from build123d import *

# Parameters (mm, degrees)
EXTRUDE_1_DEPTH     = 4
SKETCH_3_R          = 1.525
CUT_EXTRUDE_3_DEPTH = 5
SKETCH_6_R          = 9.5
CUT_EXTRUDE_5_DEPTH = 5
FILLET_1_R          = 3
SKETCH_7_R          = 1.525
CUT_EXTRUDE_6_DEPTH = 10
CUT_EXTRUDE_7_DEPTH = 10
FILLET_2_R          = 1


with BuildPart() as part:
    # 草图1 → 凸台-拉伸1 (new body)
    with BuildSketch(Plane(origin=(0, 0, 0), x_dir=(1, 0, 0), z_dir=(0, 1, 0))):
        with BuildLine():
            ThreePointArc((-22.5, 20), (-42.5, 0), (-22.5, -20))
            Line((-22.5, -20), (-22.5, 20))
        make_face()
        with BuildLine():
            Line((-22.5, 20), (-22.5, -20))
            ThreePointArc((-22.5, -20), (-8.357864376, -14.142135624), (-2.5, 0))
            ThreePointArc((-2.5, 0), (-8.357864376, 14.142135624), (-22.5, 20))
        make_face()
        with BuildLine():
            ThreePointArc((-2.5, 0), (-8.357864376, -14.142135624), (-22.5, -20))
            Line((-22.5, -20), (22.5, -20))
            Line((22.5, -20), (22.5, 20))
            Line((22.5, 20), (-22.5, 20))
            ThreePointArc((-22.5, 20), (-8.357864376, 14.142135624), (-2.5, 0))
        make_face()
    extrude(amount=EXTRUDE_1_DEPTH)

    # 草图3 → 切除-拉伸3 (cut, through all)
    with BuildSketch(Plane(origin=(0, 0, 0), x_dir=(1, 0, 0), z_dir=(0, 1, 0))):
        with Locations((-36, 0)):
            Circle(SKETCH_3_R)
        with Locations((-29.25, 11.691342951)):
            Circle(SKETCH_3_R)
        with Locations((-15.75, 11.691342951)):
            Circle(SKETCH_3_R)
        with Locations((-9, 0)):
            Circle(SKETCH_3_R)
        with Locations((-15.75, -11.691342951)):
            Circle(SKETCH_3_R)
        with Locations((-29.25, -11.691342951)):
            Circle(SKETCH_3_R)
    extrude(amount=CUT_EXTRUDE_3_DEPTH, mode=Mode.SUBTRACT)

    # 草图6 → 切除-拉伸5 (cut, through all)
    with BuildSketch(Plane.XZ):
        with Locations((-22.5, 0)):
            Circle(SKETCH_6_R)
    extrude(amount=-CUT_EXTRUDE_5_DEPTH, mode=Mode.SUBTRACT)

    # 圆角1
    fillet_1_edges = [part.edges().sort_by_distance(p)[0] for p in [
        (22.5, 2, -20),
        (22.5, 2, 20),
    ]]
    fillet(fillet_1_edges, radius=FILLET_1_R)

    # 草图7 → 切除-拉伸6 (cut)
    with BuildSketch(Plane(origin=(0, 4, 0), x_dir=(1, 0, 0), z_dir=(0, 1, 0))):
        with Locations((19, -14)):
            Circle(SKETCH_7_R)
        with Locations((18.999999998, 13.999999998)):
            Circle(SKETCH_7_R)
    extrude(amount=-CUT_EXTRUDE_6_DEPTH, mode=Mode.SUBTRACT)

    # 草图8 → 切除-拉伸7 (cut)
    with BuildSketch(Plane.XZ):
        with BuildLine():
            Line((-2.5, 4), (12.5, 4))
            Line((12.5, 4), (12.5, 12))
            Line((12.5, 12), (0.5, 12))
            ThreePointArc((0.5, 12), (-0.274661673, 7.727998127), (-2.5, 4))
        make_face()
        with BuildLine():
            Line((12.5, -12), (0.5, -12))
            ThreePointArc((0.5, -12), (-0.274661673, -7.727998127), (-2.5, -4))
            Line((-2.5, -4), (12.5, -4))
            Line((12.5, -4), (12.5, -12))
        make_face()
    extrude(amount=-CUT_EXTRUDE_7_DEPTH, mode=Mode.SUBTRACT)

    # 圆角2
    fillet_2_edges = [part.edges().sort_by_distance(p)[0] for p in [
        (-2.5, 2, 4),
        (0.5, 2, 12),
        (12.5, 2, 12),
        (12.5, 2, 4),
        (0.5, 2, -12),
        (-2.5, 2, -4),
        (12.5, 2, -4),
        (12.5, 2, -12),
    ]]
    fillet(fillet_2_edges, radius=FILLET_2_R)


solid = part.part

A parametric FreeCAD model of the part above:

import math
import FreeCAD as App
import Part
import Sketcher


def edges_at(feature, points):
    """Names of the edges that pass closest to the given points."""
    edges = feature.Shape.Edges
    near = lambda p: min(range(len(edges)), key=lambda i: edges[i].distToShape(Part.Vertex(*p))[0])
    return sorted({f"Edge{near(p) + 1}" for p in points})

doc = App.newDocument("Part")
params = doc.addObject("Spreadsheet::Sheet", "Params")
for row, (alias, value) in enumerate([
    ("sketch1_radius", "20 mm"),
    ("sketch1_width", "45 mm"),
    ("pad1_length", "4 mm"),
    ("sketch2_diameter", "3.05 mm"),
    ("sketch3_diameter", "19 mm"),
    ("fillet_radius", "3 mm"),
    ("sketch4_diameter", "3.05 mm"),
    ("pocket3_length", "10 mm"),
    ("sketch5_width", "15 mm"),
    ("sketch5_width2", "12 mm"),
    ("sketch5_height", "8 mm"),
    ("pocket4_length", "10 mm"),
    ("fillet2_radius", "1 mm"),
], start=1):
    params.set(f"A{row}", alias)
    params.set(f"B{row}", "=" + value)
    params.setAlias(f"B{row}", alias)

body = doc.addObject("PartDesign::Body", "Body")

# Sketch on XZ plane
sketch1 = doc.addObject("Sketcher::SketchObject", "Sketch")
body.addObject(sketch1)
sketch1.AttachmentSupport = (doc.XZ_Plane, [""])
sketch1.MapMode = "FlatFace"
sketch1.addGeometry(Part.ArcOfCircle(Part.Circle(App.Vector(-22.5, 0, 0), App.Vector(0, 0, 1), 20), math.radians(90), math.radians(270)), False)
sketch1.addGeometry(Part.LineSegment(App.Vector(-22.5, 20, 0), App.Vector(22.5, 20, 0)), False)
sketch1.addGeometry(Part.LineSegment(App.Vector(22.5, 20, 0), App.Vector(22.5, -20, 0)), False)
sketch1.addGeometry(Part.LineSegment(App.Vector(22.5, -20, 0), App.Vector(-22.5, -20, 0)), False)
sketch1.addConstraint(Sketcher.Constraint("Tangent", 0, 1, 1, 1))
sketch1.addConstraint(Sketcher.Constraint("Coincident", 1, 2, 2, 1))
sketch1.addConstraint(Sketcher.Constraint("Coincident", 2, 2, 3, 1))
sketch1.addConstraint(Sketcher.Constraint("Tangent", 3, 2, 0, 2))
sketch1.addConstraint(Sketcher.Constraint("Horizontal", 1))
sketch1.addConstraint(Sketcher.Constraint("Vertical", 2))
sketch1.addConstraint(Sketcher.Constraint("Horizontal", 3))
sketch1.addConstraint(Sketcher.Constraint("Symmetric", 0, 1, 2, 2, -1, 1))
sketch1.addConstraint(Sketcher.Constraint("Radius", 0, 20.0))
sketch1.addConstraint(Sketcher.Constraint("DistanceX", 1, 1, 1, 2, 45.0))
sketch1.setExpression("Constraints[8]", "Params.sketch1_radius")
sketch1.setExpression("Constraints[9]", "Params.sketch1_width")
pad1 = doc.addObject("PartDesign::Pad", "Pad")
body.addObject(pad1)
pad1.Profile = sketch1
pad1.setExpression("Length", "Params.pad1_length")
pad1.Reversed = True

# Sketch on XZ plane
sketch2 = doc.addObject("Sketcher::SketchObject", "Sketch001")
body.addObject(sketch2)
sketch2.AttachmentSupport = (doc.XZ_Plane, [""])
sketch2.MapMode = "FlatFace"
sketch2.addGeometry(Part.Circle(App.Vector(-36, 0, 0), App.Vector(0, 0, 1), 1.525), False)
sketch2.addGeometry(Part.Circle(App.Vector(-29.25, -11.691343, 0), App.Vector(0, 0, 1), 1.525), False)
sketch2.addGeometry(Part.Circle(App.Vector(-15.75, -11.691343, 0), App.Vector(0, 0, 1), 1.525), False)
sketch2.addGeometry(Part.Circle(App.Vector(-9, 0, 0), App.Vector(0, 0, 1), 1.525), False)
sketch2.addGeometry(Part.Circle(App.Vector(-15.75, 11.691343, 0), App.Vector(0, 0, 1), 1.525), False)
sketch2.addGeometry(Part.Circle(App.Vector(-29.25, 11.691343, 0), App.Vector(0, 0, 1), 1.525), False)
sketch2.addConstraint(Sketcher.Constraint("Equal", 0, 1))
sketch2.addConstraint(Sketcher.Constraint("Equal", 1, 2))
sketch2.addConstraint(Sketcher.Constraint("Equal", 2, 3))
sketch2.addConstraint(Sketcher.Constraint("Equal", 3, 4))
sketch2.addConstraint(Sketcher.Constraint("Equal", 4, 5))
sketch2.addConstraint(Sketcher.Constraint("Symmetric", 2, 3, 4, 3, -1))
sketch2.addConstraint(Sketcher.Constraint("Symmetric", 1, 3, 5, 3, -1))
sketch2.addConstraint(Sketcher.Constraint("PointOnObject", 0, 3, -1))
sketch2.addConstraint(Sketcher.Constraint("PointOnObject", 3, 3, -1))
sketch2.addConstraint(Sketcher.Constraint("Horizontal", 1, 3, 2, 3))
sketch2.addConstraint(Sketcher.Constraint("Diameter", 0, 3.05))
sketch2.addConstraint(Sketcher.Constraint("DistanceX", 0, 3, -1, 1, 36.0))
sketch2.addConstraint(Sketcher.Constraint("DistanceX", 3, 3, -1, 1, 9.0))
sketch2.addConstraint(Sketcher.Constraint("DistanceX", 1, 3, 2, 3, 13.5))
sketch2.addConstraint(Sketcher.Constraint("DistanceX", 1, 3, -1, 1, 29.25))
sketch2.addConstraint(Sketcher.Constraint("DistanceY", 1, 3, -1, 1, 11.691343))
sketch2.setExpression("Constraints[10]", "Params.sketch2_diameter")
pocket1 = doc.addObject("PartDesign::Pocket", "Pocket")
body.addObject(pocket1)
pocket1.Profile = sketch2
pocket1.Type = "ThroughAll"

# Sketch on XZ plane
sketch3 = doc.addObject("Sketcher::SketchObject", "Sketch002")
body.addObject(sketch3)
sketch3.AttachmentSupport = (doc.XZ_Plane, [""])
sketch3.MapMode = "FlatFace"
sketch3.addGeometry(Part.Circle(App.Vector(-22.5, 0, 0), App.Vector(0, 0, 1), 9.5), False)
sketch3.addConstraint(Sketcher.Constraint("PointOnObject", 0, 3, -1))
sketch3.addConstraint(Sketcher.Constraint("Diameter", 0, 19.0))
sketch3.addConstraint(Sketcher.Constraint("DistanceX", 0, 3, -1, 1, 22.5))
sketch3.setExpression("Constraints[1]", "Params.sketch3_diameter")
pocket2 = doc.addObject("PartDesign::Pocket", "Pocket001")
body.addObject(pocket2)
pocket2.Profile = sketch3
pocket2.Type = "ThroughAll"
doc.recompute()

fillet = doc.addObject("PartDesign::Fillet", "Fillet")
body.addObject(fillet)
fillet.Base = (pocket2, edges_at(pocket2, [(22.5, 2, -20), (22.5, 2, 20)]))
fillet.setExpression("Radius", "Params.fillet_radius")

# Sketch on XZ plane
sketch4 = doc.addObject("Sketcher::SketchObject", "Sketch003")
body.addObject(sketch4)
sketch4.AttachmentSupport = (doc.XZ_Plane, [""])
sketch4.MapMode = "FlatFace"
sketch4.AttachmentOffset = App.Placement(App.Vector(0, 0, -4), App.Rotation())
sketch4.addGeometry(Part.Circle(App.Vector(19, 14, 0), App.Vector(0, 0, 1), 1.525), False)
sketch4.addGeometry(Part.Circle(App.Vector(19, -14, 0), App.Vector(0, 0, 1), 1.525), False)
sketch4.addConstraint(Sketcher.Constraint("Equal", 0, 1))
sketch4.addConstraint(Sketcher.Constraint("Symmetric", 0, 3, 1, 3, -1))
sketch4.addConstraint(Sketcher.Constraint("Diameter", 0, 3.05))
sketch4.addConstraint(Sketcher.Constraint("DistanceX", -1, 1, 0, 3, 19.0))
sketch4.addConstraint(Sketcher.Constraint("DistanceY", -1, 1, 0, 3, 14.0))
sketch4.setExpression("Constraints[2]", "Params.sketch4_diameter")
pocket3 = doc.addObject("PartDesign::Pocket", "Pocket002")
body.addObject(pocket3)
pocket3.Profile = sketch4
pocket3.setExpression("Length", "Params.pocket3_length")
pocket3.Reversed = True

# Sketch on XZ plane
sketch5 = doc.addObject("Sketcher::SketchObject", "Sketch004")
body.addObject(sketch5)
sketch5.AttachmentSupport = (doc.XZ_Plane, [""])
sketch5.MapMode = "FlatFace"
sketch5.addGeometry(Part.LineSegment(App.Vector(-2.5, 4, 0), App.Vector(12.5, 4, 0)), False)
sketch5.addGeometry(Part.LineSegment(App.Vector(12.5, 4, 0), App.Vector(12.5, 12, 0)), False)
sketch5.addGeometry(Part.LineSegment(App.Vector(12.5, 12, 0), App.Vector(0.5, 12, 0)), False)
sketch5.addGeometry(Part.ArcOfCircle(Part.Circle(App.Vector(-11.666667, 12, 0), App.Vector(0, 0, 1), 12.166667), math.radians(-41.11209), math.radians(0)), False)
sketch5.addGeometry(Part.LineSegment(App.Vector(0.5, -12, 0), App.Vector(12.5, -12, 0)), False)
sketch5.addGeometry(Part.LineSegment(App.Vector(12.5, -12, 0), App.Vector(12.5, -4, 0)), False)
sketch5.addGeometry(Part.LineSegment(App.Vector(12.5, -4, 0), App.Vector(-2.5, -4, 0)), False)
sketch5.addGeometry(Part.ArcOfCircle(Part.Circle(App.Vector(-11.666667, -12, 0), App.Vector(0, 0, 1), 12.166667), math.radians(0), math.radians(41.11209)), False)
sketch5.addConstraint(Sketcher.Constraint("Coincident", 0, 2, 1, 1))
sketch5.addConstraint(Sketcher.Constraint("Coincident", 1, 2, 2, 1))
sketch5.addConstraint(Sketcher.Constraint("Coincident", 2, 2, 3, 2))
sketch5.addConstraint(Sketcher.Constraint("Coincident", 3, 1, 0, 1))
sketch5.addConstraint(Sketcher.Constraint("Coincident", 4, 2, 5, 1))
sketch5.addConstraint(Sketcher.Constraint("Coincident", 5, 2, 6, 1))
sketch5.addConstraint(Sketcher.Constraint("Coincident", 6, 2, 7, 2))
sketch5.addConstraint(Sketcher.Constraint("Coincident", 7, 1, 4, 1))
sketch5.addConstraint(Sketcher.Constraint("Horizontal", 0))
sketch5.addConstraint(Sketcher.Constraint("Vertical", 1))
sketch5.addConstraint(Sketcher.Constraint("Horizontal", 2))
sketch5.addConstraint(Sketcher.Constraint("Horizontal", 4))
sketch5.addConstraint(Sketcher.Constraint("Vertical", 5))
sketch5.addConstraint(Sketcher.Constraint("Horizontal", 6))
sketch5.addConstraint(Sketcher.Constraint("Equal", 3, 7))
sketch5.addConstraint(Sketcher.Constraint("Symmetric", 3, 3, 7, 3, -1))
sketch5.addConstraint(Sketcher.Constraint("Symmetric", 1, 2, 4, 2, -1))
sketch5.addConstraint(Sketcher.Constraint("Horizontal", 3, 3, 1, 2))
sketch5.addConstraint(Sketcher.Constraint("Vertical", 3, 1, 6, 2))
sketch5.addConstraint(Sketcher.Constraint("DistanceX", 0, 1, 0, 2, 15.0))
sketch5.addConstraint(Sketcher.Constraint("DistanceX", 2, 2, 2, 1, 12.0))
sketch5.addConstraint(Sketcher.Constraint("DistanceY", 1, 1, 1, 2, 8.0))
sketch5.addConstraint(Sketcher.Constraint("DistanceY", -1, 1, 3, 3, 12.0))
sketch5.addConstraint(Sketcher.Constraint("DistanceX", -1, 1, 0, 2, 12.5))
sketch5.setExpression("Constraints[19]", "Params.sketch5_width")
sketch5.setExpression("Constraints[20]", "Params.sketch5_width2")
sketch5.setExpression("Constraints[21]", "Params.sketch5_height")
pocket4 = doc.addObject("PartDesign::Pocket", "Pocket003")
body.addObject(pocket4)
pocket4.Profile = sketch5
pocket4.setExpression("Length", "Params.pocket4_length")
doc.recompute()

fillet2 = doc.addObject("PartDesign::Fillet", "Fillet001")
body.addObject(fillet2)
fillet2.Base = (pocket4, edges_at(pocket4, [
    (-2.5, 2, 4),
    (0.5, 2, 12),
    (12.5, 2, 12),
    (12.5, 2, 4),
    (0.5, 2, -12),
    (-2.5, 2, -4),
    (12.5, 2, -4),
    (12.5, 2, -12),
]))
fillet2.setExpression("Radius", "Params.fillet2_radius")

doc.recompute()
